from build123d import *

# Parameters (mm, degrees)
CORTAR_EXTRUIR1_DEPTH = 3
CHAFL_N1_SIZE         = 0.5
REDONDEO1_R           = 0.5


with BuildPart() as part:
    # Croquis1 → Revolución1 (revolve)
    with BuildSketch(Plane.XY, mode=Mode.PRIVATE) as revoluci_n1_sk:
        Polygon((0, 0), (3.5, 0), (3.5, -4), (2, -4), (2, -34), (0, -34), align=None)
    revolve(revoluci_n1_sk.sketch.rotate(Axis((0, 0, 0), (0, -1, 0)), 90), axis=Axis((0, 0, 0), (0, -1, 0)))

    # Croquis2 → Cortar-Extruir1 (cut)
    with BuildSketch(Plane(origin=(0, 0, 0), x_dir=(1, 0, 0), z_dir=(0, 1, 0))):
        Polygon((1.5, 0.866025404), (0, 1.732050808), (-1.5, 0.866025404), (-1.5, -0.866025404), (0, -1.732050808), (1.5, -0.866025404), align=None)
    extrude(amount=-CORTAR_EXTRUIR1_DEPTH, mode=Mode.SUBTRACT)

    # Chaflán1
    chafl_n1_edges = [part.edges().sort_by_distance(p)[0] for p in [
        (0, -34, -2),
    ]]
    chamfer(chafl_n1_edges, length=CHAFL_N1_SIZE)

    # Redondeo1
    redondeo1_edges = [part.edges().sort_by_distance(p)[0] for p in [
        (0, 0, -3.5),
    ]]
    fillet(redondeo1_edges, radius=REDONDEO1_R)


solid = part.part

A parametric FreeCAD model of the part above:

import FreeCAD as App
import Part
import Sketcher
Q = App.Units.Quantity


def edges_at(feature, points):
    """Names of the edges that pass closest to the given points."""
    edges = feature.Shape.Edges
    near = lambda p: min(range(len(edges)), key=lambda i: edges[i].distToShape(Part.Vertex(*p))[0])
    return sorted({f"Edge{near(p) + 1}" for p in points})


def add_polygon(sketch, points):
    """Adds a closed chain of lines whose ends are joined by coincident constraints."""
    first, n = sketch.GeometryCount, len(points)
    for a, b in zip(points, points[1:] + points[:1]):
        sketch.addGeometry(Part.LineSegment(App.Vector(*a, 0), App.Vector(*b, 0)), False)
    for i in range(n):
        sketch.addConstraint(Sketcher.Constraint("Coincident", first + i, 2, first + (i + 1) % n, 1))

doc = App.newDocument("Part")
body = doc.addObject("PartDesign::Body", "Body")

sketch1 = doc.addObject("Sketcher::SketchObject", "Sketch")
body.addObject(sketch1)
sketch1.AttachmentSupport = (doc.XY_Plane, [""])
sketch1.MapMode = "FlatFace"
add_polygon(sketch1, [(3.5, 0), (0, 0), (0, -34), (2, -34), (2, -4), (3.5, -4)])
sketch1.addConstraint(Sketcher.Constraint("Horizontal", 0))
sketch1.addConstraint(Sketcher.Constraint("Vertical", 1))
sketch1.addConstraint(Sketcher.Constraint("Horizontal", 2))
sketch1.addConstraint(Sketcher.Constraint("Vertical", 3))
sketch1.addConstraint(Sketcher.Constraint("Horizontal", 4))
sketch1.addConstraint(Sketcher.Constraint("Vertical", 5))
sketch1.addConstraint(Sketcher.Constraint("Coincident", 0, 2, -1, 1))
sketch1.addConstraint(Sketcher.Constraint("DistanceX", 2, 1, 2, 2, Q("2 mm")))
sketch1.addConstraint(Sketcher.Constraint("DistanceY", 1, 2, 1, 1, Q("34 mm")))
sketch1.addConstraint(Sketcher.Constraint("DistanceY", 3, 1, 3, 2, Q("30 mm")))
sketch1.addConstraint(Sketcher.Constraint("DistanceX", 0, 2, 0, 1, Q("3.5 mm")))
revolution = doc.addObject("PartDesign::Revolution", "Revolution")
body.addObject(revolution)
revolution.Profile = sketch1
revolution.ReferenceAxis = (sketch1, ["V_Axis"])
revolution.Angle = 360

sketch2 = doc.addObject("Sketcher::SketchObject", "Sketch001")
body.addObject(sketch2)
sketch2.AttachmentSupport = (doc.XZ_Plane, [""])
sketch2.MapMode = "FlatFace"
add_polygon(sketch2, [(1.5, -0.9), (0, -1.7), (-1.5, -0.9), (-1.5, 0.9), (0, 1.7), (1.5, 0.9)])
sketch2.addConstraint(Sketcher.Constraint("Vertical", 2))
sketch2.addConstraint(Sketcher.Constraint("Vertical", 5))
sketch2.addConstraint(Sketcher.Constraint("Symmetric", 0, 2, 3, 2, -1, 1))
sketch2.addConstraint(Sketcher.Constraint("Symmetric", 1, 2, 4, 2, -1, 1))
sketch2.addConstraint(Sketcher.Constraint("PointOnObject", 0, 2, -2))
sketch2.addConstraint(Sketcher.Constraint("Parallel", 0, 3))
sketch2.addConstraint(Sketcher.Constraint("Horizontal", 2, 2, 4, 2))
sketch2.addConstraint(Sketcher.Constraint("Angle", 0, Q("-150 deg")))
sketch2.addConstraint(Sketcher.Constraint("DistanceX", 2, 2, 4, 2, Q("3 mm")))
sketch2.addConstraint(Sketcher.Constraint("DistanceY", 2, 1, 2, 2, Q("1.732051 mm")))
pocket1 = doc.addObject("PartDesign::Pocket", "Pocket")
body.addObject(pocket1)
pocket1.Profile = sketch2
pocket1.Length = 3
pocket1.Reversed = True
doc.recompute()

chamfer = doc.addObject("PartDesign::Chamfer", "Chamfer")
body.addObject(chamfer)
chamfer.Base = (pocket1, edges_at(pocket1, [(0, -34, -2)]))
chamfer.Size = 0.5
doc.recompute()

fillet = doc.addObject("PartDesign::Fillet", "Fillet")
body.addObject(fillet)
fillet.Base = (chamfer, edges_at(chamfer, [(0, 0, -3.5)]))
fillet.Radius = 0.5

doc.recompute()
